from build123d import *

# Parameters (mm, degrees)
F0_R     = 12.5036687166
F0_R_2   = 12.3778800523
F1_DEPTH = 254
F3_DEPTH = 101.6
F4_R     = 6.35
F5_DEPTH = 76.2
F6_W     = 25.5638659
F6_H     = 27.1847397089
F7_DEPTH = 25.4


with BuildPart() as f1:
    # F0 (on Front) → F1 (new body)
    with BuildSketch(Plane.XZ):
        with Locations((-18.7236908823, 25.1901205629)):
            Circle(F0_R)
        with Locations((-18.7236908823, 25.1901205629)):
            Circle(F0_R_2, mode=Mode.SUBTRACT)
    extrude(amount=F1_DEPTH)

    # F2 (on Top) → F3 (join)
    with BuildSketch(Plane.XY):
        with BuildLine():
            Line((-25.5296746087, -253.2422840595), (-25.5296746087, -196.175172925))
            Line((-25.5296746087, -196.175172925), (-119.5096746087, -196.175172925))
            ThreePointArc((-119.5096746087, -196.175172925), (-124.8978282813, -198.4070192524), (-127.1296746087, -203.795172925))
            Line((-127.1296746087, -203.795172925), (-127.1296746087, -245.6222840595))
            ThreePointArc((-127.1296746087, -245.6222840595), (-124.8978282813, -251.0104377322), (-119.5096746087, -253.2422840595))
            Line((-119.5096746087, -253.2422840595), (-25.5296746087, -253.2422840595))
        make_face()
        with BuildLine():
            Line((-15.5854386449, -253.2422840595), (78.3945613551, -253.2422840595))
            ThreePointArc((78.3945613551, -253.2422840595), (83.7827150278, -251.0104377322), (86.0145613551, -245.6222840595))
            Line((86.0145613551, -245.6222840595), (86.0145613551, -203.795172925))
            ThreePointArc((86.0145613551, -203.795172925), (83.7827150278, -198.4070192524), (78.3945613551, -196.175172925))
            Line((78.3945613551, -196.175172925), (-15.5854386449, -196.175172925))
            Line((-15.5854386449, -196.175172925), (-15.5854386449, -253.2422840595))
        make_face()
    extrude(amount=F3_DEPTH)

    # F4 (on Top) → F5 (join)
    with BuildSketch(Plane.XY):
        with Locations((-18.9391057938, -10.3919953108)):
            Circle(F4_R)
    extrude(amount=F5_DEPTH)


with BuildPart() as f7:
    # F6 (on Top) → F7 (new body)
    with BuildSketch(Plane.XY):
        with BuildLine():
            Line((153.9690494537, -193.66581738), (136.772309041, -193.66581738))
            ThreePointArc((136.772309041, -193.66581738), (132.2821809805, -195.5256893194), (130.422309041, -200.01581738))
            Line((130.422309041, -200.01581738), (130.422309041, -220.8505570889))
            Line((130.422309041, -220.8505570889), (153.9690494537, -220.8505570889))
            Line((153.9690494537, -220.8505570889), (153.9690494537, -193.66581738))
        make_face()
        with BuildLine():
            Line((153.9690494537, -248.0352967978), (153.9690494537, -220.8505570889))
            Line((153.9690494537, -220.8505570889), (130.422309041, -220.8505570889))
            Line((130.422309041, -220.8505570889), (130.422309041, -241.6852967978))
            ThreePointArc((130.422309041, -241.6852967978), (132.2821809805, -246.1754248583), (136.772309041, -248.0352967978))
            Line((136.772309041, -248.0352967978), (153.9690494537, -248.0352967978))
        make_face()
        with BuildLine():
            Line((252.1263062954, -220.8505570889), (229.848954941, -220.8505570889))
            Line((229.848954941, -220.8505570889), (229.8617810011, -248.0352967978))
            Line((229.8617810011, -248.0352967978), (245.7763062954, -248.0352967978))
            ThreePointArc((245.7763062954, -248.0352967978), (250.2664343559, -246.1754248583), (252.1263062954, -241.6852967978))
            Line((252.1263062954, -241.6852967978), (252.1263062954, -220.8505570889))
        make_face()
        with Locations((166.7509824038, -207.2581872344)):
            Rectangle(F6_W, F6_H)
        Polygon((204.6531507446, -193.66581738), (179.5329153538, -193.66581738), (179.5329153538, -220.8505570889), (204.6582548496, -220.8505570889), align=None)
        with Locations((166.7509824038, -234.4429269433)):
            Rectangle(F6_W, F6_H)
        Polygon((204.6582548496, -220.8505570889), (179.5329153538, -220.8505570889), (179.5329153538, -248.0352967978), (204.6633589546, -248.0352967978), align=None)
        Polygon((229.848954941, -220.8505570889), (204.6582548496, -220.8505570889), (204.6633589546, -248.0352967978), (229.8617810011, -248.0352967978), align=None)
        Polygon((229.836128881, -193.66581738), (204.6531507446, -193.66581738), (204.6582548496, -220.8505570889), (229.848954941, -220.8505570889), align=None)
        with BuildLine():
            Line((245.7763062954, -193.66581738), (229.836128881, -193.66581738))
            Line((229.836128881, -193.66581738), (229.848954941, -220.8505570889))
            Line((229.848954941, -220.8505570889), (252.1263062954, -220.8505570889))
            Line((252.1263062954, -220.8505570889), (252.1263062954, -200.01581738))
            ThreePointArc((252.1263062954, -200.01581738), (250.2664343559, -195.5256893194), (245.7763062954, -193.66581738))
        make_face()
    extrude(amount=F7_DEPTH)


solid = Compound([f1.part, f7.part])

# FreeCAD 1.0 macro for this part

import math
import FreeCAD as App
import Part
import Sketcher
from FreeCAD import Vector
Q = App.Units.Quantity

doc = App.newDocument("Part")
body = doc.addObject("PartDesign::Body", "Body")

sketch1 = body.newObject("Sketcher::SketchObject", "Sketch")
sketch1.AttachmentSupport = (doc.getObject("XZ_Plane"), [""])
sketch1.MapMode = "FlatFace"
sketch1.addGeometry(Part.Circle(Vector(-19, 25, 0), Vector(0, 0, 1), 13), False)
sketch1.addGeometry(Part.Circle(Vector(-19, 25, 0), Vector(0, 0, 1), 12), False)
sketch1.addConstraint(Sketcher.Constraint("Coincident", 1, 3, 0, 3))
sketch1.addConstraint(Sketcher.Constraint("Diameter", 1, Q("24.75576 mm")))
sketch1.addConstraint(Sketcher.Constraint("Diameter", 0, Q("25.007337 mm")))
sketch1.addConstraint(Sketcher.Constraint("DistanceX", 0, 3, -1, 1, Q("18.723691 mm")))
sketch1.addConstraint(Sketcher.Constraint("DistanceY", -1, 1, 0, 3, Q("25.190121 mm")))
pad1 = body.newObject("PartDesign::Pad", "Pad")
pad1.Profile = sketch1
pad1.Length = Q("10 in")

sketch2 = body.newObject("Sketcher::SketchObject", "Sketch001")
sketch2.AttachmentSupport = (doc.getObject("XY_Plane"), [""])
sketch2.MapMode = "FlatFace"
sketch2.addGeometry(Part.LineSegment(Vector(-26, -253, 0), Vector(-26, -196, 0)), False)
sketch2.addGeometry(Part.LineSegment(Vector(-26, -196, 0), Vector(-120, -196, 0)), False)
sketch2.addGeometry(Part.ArcOfCircle(Part.Circle(Vector(-120, -204, 0), Vector(0, 0, 1), 8), math.radians(90), math.radians(180)), False)
sketch2.addGeometry(Part.LineSegment(Vector(-127, -204, 0), Vector(-127, -246, 0)), False)
sketch2.addGeometry(Part.ArcOfCircle(Part.Circle(Vector(-120, -246, 0), Vector(0, 0, 1), 8), math.radians(180), math.radians(270)), False)
sketch2.addGeometry(Part.LineSegment(Vector(-120, -253, 0), Vector(-26, -253, 0)), False)
sketch2.addGeometry(Part.LineSegment(Vector(-16, -253, 0), Vector(78, -253, 0)), False)
sketch2.addGeometry(Part.ArcOfCircle(Part.Circle(Vector(78, -246, 0), Vector(0, 0, 1), 8), math.radians(-90), math.radians(0)), False)
sketch2.addGeometry(Part.LineSegment(Vector(86, -246, 0), Vector(86, -204, 0)), False)
sketch2.addGeometry(Part.ArcOfCircle(Part.Circle(Vector(78, -204, 0), Vector(0, 0, 1), 8), math.radians(0), math.radians(90)), False)
sketch2.addGeometry(Part.LineSegment(Vector(78, -196, 0), Vector(-16, -196, 0)), False)
sketch2.addGeometry(Part.LineSegment(Vector(-16, -196, 0), Vector(-16, -253, 0)), False)
sketch2.addConstraint(Sketcher.Constraint("Coincident", 0, 2, 1, 1))
sketch2.addConstraint(Sketcher.Constraint("Tangent", 1, 2, 2, 1))
sketch2.addConstraint(Sketcher.Constraint("Tangent", 2, 2, 3, 1))
sketch2.addConstraint(Sketcher.Constraint("Tangent", 3, 2, 4, 1))
sketch2.addConstraint(Sketcher.Constraint("Tangent", 4, 2, 5, 1))
sketch2.addConstraint(Sketcher.Constraint("Coincident", 5, 2, 0, 1))
sketch2.addConstraint(Sketcher.Constraint("Tangent", 6, 2, 7, 1))
sketch2.addConstraint(Sketcher.Constraint("Tangent", 7, 2, 8, 1))
sketch2.addConstraint(Sketcher.Constraint("Tangent", 8, 2, 9, 1))
sketch2.addConstraint(Sketcher.Constraint("Tangent", 9, 2, 10, 1))
sketch2.addConstraint(Sketcher.Constraint("Coincident", 10, 2, 11, 1))
sketch2.addConstraint(Sketcher.Constraint("Coincident", 11, 2, 6, 1))
sketch2.addConstraint(Sketcher.Constraint("Vertical", 0))
sketch2.addConstraint(Sketcher.Constraint("Horizontal", 1))
sketch2.addConstraint(Sketcher.Constraint("Vertical", 3))
sketch2.addConstraint(Sketcher.Constraint("Horizontal", 5))
sketch2.addConstraint(Sketcher.Constraint("Horizontal", 6))
sketch2.addConstraint(Sketcher.Constraint("Vertical", 8))
sketch2.addConstraint(Sketcher.Constraint("Horizontal", 10))
sketch2.addConstraint(Sketcher.Constraint("Vertical", 11))
sketch2.addConstraint(Sketcher.Constraint("Equal", 2, 4))
sketch2.addConstraint(Sketcher.Constraint("Equal", 4, 7))
sketch2.addConstraint(Sketcher.Constraint("Equal", 7, 9))
sketch2.addConstraint(Sketcher.Constraint("Horizontal", 4, 3, 7, 3))
sketch2.addConstraint(Sketcher.Constraint("Horizontal", 2, 3, 9, 3))
sketch2.addConstraint(Sketcher.Constraint("Equal", 5, 6))
sketch2.addConstraint(Sketcher.Constraint("Radius", 2, Q("0.3 in")))
sketch2.addConstraint(Sketcher.Constraint("DistanceX", 1, 2, 1, 1, Q("3.7 in")))
sketch2.addConstraint(Sketcher.Constraint("DistanceX", -1, 1, 7, 3, Q("3.0864001 in")))
sketch2.addConstraint(Sketcher.Constraint("DistanceY", 0, 1, 0, 2, Q("57.067111 mm")))
sketch2.addConstraint(Sketcher.Constraint("DistanceX", 2, 3, -1, 1, Q("119.509675 mm")))
sketch2.addConstraint(Sketcher.Constraint("DistanceY", 2, 3, -1, 1, Q("203.795173 mm")))
pad2 = body.newObject("PartDesign::Pad", "Pad001")
pad2.Profile = sketch2
pad2.Length = Q("4 in")

sketch3 = body.newObject("Sketcher::SketchObject", "Sketch002")
sketch3.AttachmentSupport = (doc.getObject("XY_Plane"), [""])
sketch3.MapMode = "FlatFace"
sketch3.addGeometry(Part.Circle(Vector(-19, -10, 0), Vector(0, 0, 1), 6), False)
sketch3.addConstraint(Sketcher.Constraint("Diameter", 0, Q("0.5 in")))
sketch3.addConstraint(Sketcher.Constraint("DistanceX", 0, 3, -1, 1, Q("18.939106 mm")))
sketch3.addConstraint(Sketcher.Constraint("DistanceY", 0, 3, -1, 1, Q("10.391995 mm")))
pad3 = body.newObject("PartDesign::Pad", "Pad002")
pad3.Profile = sketch3
pad3.Length = Q("3 in")
body2 = doc.addObject("PartDesign::Body", "Body001")

sketch4 = body2.newObject("Sketcher::SketchObject", "Sketch003")
sketch4.AttachmentSupport = (doc.getObject("XY_Plane001"), [""])
sketch4.MapMode = "FlatFace"
sketch4.addGeometry(Part.ArcOfCircle(Part.Circle(Vector(137, -200, 0), Vector(0, 0, 1), 6), math.radians(90), math.radians(180)), False)
sketch4.addGeometry(Part.LineSegment(Vector(130, -200, 0), Vector(130, -242, 0)), False)
sketch4.addGeometry(Part.ArcOfCircle(Part.Circle(Vector(137, -242, 0), Vector(0, 0, 1), 6), math.radians(180), math.radians(270)), False)
sketch4.addGeometry(Part.LineSegment(Vector(137, -248, 0), Vector(246, -248, 0)), False)
sketch4.addGeometry(Part.ArcOfCircle(Part.Circle(Vector(246, -242, 0), Vector(0, 0, 1), 6), math.radians(-90), math.radians(0)), False)
sketch4.addGeometry(Part.LineSegment(Vector(252, -242, 0), Vector(252, -200, 0)), False)
sketch4.addGeometry(Part.ArcOfCircle(Part.Circle(Vector(246, -200, 0), Vector(0, 0, 1), 6), math.radians(0), math.radians(90)), False)
sketch4.addGeometry(Part.LineSegment(Vector(246, -194, 0), Vector(137, -194, 0)), False)
sketch4.addConstraint(Sketcher.Constraint("Tangent", 0, 2, 1, 1))
sketch4.addConstraint(Sketcher.Constraint("Tangent", 1, 2, 2, 1))
sketch4.addConstraint(Sketcher.Constraint("Tangent", 2, 2, 3, 1))
sketch4.addConstraint(Sketcher.Constraint("Tangent", 3, 2, 4, 1))
sketch4.addConstraint(Sketcher.Constraint("Tangent", 4, 2, 5, 1))
sketch4.addConstraint(Sketcher.Constraint("Tangent", 5, 2, 6, 1))
sketch4.addConstraint(Sketcher.Constraint("Tangent", 6, 2, 7, 1))
sketch4.addConstraint(Sketcher.Constraint("Tangent", 7, 2, 0, 1))
sketch4.addConstraint(Sketcher.Constraint("Vertical", 1))
sketch4.addConstraint(Sketcher.Constraint("Horizontal", 3))
sketch4.addConstraint(Sketcher.Constraint("Vertical", 5))
sketch4.addConstraint(Sketcher.Constraint("Horizontal", 7))
sketch4.addConstraint(Sketcher.Constraint("Equal", 0, 2))
sketch4.addConstraint(Sketcher.Constraint("Equal", 2, 4))
sketch4.addConstraint(Sketcher.Constraint("Equal", 4, 6))
sketch4.addConstraint(Sketcher.Constraint("Radius", 0, Q("0.25 in")))
sketch4.addConstraint(Sketcher.Constraint("DistanceY", 1, 2, 1, 1, Q("41.669479 mm")))
sketch4.addConstraint(Sketcher.Constraint("DistanceX", 3, 1, 3, 2, Q("109.003997 mm")))
sketch4.addConstraint(Sketcher.Constraint("DistanceX", -1, 1, 0, 3, Q("136.772309 mm")))
sketch4.addConstraint(Sketcher.Constraint("DistanceY", 0, 3, -1, 1, Q("200.015817 mm")))
pad4 = body2.newObject("PartDesign::Pad", "Pad003")
pad4.Profile = sketch4
pad4.Length = Q("1 in")

doc.recompute()
